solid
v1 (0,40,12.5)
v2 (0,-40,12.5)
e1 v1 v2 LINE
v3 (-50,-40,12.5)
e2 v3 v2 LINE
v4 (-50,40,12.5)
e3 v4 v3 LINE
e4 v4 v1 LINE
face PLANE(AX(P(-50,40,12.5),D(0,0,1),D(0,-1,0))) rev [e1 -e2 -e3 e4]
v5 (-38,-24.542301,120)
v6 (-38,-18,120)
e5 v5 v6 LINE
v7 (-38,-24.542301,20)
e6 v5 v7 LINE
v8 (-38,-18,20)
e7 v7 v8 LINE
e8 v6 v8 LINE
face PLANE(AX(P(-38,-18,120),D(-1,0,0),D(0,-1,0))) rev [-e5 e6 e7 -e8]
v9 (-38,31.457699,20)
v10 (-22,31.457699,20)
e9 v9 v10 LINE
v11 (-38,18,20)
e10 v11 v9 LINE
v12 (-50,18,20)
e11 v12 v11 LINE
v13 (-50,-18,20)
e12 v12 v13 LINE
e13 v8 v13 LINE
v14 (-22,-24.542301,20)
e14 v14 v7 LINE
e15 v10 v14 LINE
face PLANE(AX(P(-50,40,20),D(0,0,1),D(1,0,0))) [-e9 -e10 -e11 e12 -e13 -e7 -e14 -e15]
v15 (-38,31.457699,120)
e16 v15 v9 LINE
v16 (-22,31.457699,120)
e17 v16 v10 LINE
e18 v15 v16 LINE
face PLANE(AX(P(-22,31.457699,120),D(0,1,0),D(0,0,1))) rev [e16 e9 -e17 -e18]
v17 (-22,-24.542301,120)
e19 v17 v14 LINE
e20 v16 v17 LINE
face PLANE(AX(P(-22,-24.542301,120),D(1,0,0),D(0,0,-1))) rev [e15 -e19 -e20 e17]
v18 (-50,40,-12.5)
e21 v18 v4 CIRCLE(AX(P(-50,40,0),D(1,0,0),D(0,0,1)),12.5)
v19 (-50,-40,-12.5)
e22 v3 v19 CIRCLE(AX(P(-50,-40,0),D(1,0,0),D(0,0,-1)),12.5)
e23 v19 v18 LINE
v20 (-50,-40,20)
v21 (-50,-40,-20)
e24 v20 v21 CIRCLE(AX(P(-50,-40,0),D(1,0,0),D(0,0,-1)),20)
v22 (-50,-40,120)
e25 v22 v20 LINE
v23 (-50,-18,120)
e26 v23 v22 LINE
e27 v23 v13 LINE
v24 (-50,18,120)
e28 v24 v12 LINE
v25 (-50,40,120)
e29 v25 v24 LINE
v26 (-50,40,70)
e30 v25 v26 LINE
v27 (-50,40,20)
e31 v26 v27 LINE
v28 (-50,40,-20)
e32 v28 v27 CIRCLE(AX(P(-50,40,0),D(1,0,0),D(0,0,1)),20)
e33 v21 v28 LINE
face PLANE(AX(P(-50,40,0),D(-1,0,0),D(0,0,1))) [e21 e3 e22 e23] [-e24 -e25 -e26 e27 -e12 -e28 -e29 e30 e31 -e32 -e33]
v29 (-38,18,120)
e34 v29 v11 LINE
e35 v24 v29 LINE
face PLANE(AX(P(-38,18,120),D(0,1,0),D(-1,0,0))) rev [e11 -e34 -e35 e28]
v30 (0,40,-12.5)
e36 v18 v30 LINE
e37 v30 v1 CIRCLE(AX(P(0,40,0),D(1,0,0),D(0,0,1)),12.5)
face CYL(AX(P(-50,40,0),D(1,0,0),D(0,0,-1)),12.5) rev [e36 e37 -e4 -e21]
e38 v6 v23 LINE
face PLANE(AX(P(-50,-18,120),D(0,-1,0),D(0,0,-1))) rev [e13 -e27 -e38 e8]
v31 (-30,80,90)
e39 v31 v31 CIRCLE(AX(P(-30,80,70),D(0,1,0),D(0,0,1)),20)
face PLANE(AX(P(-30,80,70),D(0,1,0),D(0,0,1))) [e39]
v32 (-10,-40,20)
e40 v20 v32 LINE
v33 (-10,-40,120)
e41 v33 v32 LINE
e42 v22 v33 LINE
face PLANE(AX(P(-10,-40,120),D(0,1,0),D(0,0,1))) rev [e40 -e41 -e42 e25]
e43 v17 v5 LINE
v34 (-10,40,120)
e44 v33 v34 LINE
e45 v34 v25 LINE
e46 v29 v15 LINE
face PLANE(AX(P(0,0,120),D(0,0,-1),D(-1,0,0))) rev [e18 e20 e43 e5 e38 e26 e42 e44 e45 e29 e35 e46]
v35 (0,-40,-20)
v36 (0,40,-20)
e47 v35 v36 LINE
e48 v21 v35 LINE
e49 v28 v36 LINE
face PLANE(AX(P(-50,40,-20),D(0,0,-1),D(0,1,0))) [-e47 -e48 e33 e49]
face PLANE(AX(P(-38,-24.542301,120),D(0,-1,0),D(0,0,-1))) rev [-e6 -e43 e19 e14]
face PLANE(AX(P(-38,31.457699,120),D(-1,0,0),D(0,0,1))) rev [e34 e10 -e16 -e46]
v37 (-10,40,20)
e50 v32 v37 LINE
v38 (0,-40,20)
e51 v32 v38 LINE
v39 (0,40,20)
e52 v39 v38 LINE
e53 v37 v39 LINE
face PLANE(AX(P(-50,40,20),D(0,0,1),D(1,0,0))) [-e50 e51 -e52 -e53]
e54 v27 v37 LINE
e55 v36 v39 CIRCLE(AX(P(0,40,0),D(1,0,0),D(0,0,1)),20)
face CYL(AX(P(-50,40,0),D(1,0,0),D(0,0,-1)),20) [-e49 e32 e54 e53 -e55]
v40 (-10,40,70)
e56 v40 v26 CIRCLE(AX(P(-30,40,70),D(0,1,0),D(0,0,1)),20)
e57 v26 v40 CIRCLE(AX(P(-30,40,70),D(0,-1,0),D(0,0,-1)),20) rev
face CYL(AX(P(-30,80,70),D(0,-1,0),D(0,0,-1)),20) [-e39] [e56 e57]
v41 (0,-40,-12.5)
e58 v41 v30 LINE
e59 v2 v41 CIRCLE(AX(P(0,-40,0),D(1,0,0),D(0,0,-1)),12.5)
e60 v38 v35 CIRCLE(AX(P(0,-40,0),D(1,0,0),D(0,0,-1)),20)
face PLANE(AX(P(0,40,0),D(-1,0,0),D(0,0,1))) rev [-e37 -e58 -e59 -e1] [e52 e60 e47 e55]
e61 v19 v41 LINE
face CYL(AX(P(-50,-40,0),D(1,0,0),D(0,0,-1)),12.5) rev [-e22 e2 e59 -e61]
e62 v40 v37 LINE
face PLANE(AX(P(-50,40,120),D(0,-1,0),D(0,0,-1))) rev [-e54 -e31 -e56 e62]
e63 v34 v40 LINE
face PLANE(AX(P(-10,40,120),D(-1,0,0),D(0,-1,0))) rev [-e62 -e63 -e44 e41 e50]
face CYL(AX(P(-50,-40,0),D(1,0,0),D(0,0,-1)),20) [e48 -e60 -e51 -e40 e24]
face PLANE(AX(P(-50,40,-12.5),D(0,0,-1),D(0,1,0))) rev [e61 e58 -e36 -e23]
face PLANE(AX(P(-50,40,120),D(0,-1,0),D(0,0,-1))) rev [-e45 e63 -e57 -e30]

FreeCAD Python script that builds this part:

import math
import FreeCAD as App
import Part
import Sketcher
from FreeCAD import Vector
Q = App.Units.Quantity


def add_polygon(sketch, points):
    """Adds a closed chain of lines whose ends are joined by coincident constraints."""
    first, n = sketch.GeometryCount, len(points)
    for a, b in zip(points, points[1:] + points[:1]):
        sketch.addGeometry(Part.LineSegment(App.Vector(*a, 0), App.Vector(*b, 0)), False)
    for i in range(n):
        sketch.addConstraint(Sketcher.Constraint("Coincident", first + i, 2, first + (i + 1) % n, 1))

doc = App.newDocument("Part")
body = doc.addObject("PartDesign::Body", "Body")

# Sketch on YZ plane
sketch1 = doc.addObject("Sketcher::SketchObject", "Sketch")
body.addObject(sketch1)
sketch1.AttachmentSupport = (doc.YZ_Plane, [""])
sketch1.MapMode = "FlatFace"
sketch1.addGeometry([
    Part.LineSegment(Vector(40, 20, 0), Vector(-40, 20, 0)),  # 0
    Part.ArcOfCircle(Part.Circle(Vector(-40, 0, 0), Vector(0, 0, 1), 20), math.radians(90), math.radians(270)),  # 1
    Part.LineSegment(Vector(-40, -20, 0), Vector(40, -20, 0)),  # 2
    Part.ArcOfCircle(Part.Circle(Vector(40, 0, 0), Vector(0, 0, 1), 20), math.radians(-90), math.radians(90)),  # 3
    Part.LineSegment(Vector(-40, 12.5, 0), Vector(40, 12.5, 0)),  # 4
    Part.ArcOfCircle(Part.Circle(Vector(40, 0, 0), Vector(0, 0, 1), 12.5), math.radians(-90), math.radians(90)),  # 5
    Part.LineSegment(Vector(40, -12.5, 0), Vector(-40, -12.5, 0)),  # 6
    Part.ArcOfCircle(Part.Circle(Vector(-40, 0, 0), Vector(0, 0, 1), 12.5), math.radians(90), math.radians(270)),  # 7
], False)
sketch1.addConstraint([
    Sketcher.Constraint("Tangent", 0, 2, 1, 1),
    Sketcher.Constraint("Tangent", 1, 2, 2, 1),
    Sketcher.Constraint("Tangent", 2, 2, 3, 1),
    Sketcher.Constraint("Tangent", 3, 2, 0, 1),
    Sketcher.Constraint("Tangent", 4, 2, 5, 2),
    Sketcher.Constraint("Tangent", 5, 1, 6, 1),
    Sketcher.Constraint("Tangent", 6, 2, 7, 2),
    Sketcher.Constraint("Tangent", 7, 1, 4, 1),
    Sketcher.Constraint("Horizontal", 0),
    Sketcher.Constraint("Horizontal", 2),
    Sketcher.Constraint("Horizontal", 4),
    Sketcher.Constraint("Horizontal", 6),
    Sketcher.Constraint("Coincident", 5, 3, 3, 3),
    Sketcher.Constraint("Symmetric", 1, 3, 3, 3, -1, 1),
    Sketcher.Constraint("Vertical", 7, 3, 0, 2),
    Sketcher.Constraint("Radius", 1, Q("20 mm")),
    Sketcher.Constraint("Radius", 5, Q("12.5 mm")),
    Sketcher.Constraint("DistanceX", 0, 2, 0, 1, Q("80 mm")),
])
pad1 = doc.addObject("PartDesign::Pad", "Pad")
body.addObject(pad1)
pad1.Profile = sketch1
pad1.Length = 50
pad1.Reversed = True

# Sketch on XY plane
sketch2 = doc.addObject("Sketcher::SketchObject", "Sketch001")
body.addObject(sketch2)
sketch2.AttachmentSupport = (doc.XY_Plane, [""])
sketch2.MapMode = "FlatFace"
sketch2.AttachmentOffset = App.Placement(Vector(0, 0, 20), App.Rotation())
add_polygon(sketch2, [(-10, 40), (-50, 40), (-50, 18), (-38, 18), (-38, 31.457699), (-22, 31.457699), (-22, -24.542301), (-38, -24.542301), (-38, -18), (-50, -18), (-50, -40), (-10, -40)])  # lines 0-11
sketch2.addConstraint([
    Sketcher.Constraint("Horizontal", 0),
    Sketcher.Constraint("Vertical", 1),
    Sketcher.Constraint("Horizontal", 2),
    Sketcher.Constraint("Vertical", 3),
    Sketcher.Constraint("Horizontal", 4),
    Sketcher.Constraint("Vertical", 5),
    Sketcher.Constraint("Horizontal", 6),
    Sketcher.Constraint("Vertical", 7),
    Sketcher.Constraint("Horizontal", 8),
    Sketcher.Constraint("Vertical", 9),
    Sketcher.Constraint("Horizontal", 10),
    Sketcher.Constraint("Vertical", 11),
    Sketcher.Constraint("Symmetric", 2, 2, 7, 2, -1),
    Sketcher.Constraint("Symmetric", 0, 2, 9, 2, -1),
    Sketcher.Constraint("DistanceX", 0, 2, 0, 1, Q("40 mm")),
    Sketcher.Constraint("DistanceX", 2, 1, 2, 2, Q("12 mm")),
    Sketcher.Constraint("DistanceX", 4, 1, 4, 2, Q("16 mm")),
    Sketcher.Constraint("DistanceY", 1, 2, 1, 1, Q("22 mm")),
    Sketcher.Constraint("DistanceY", 5, 2, 5, 1, Q("56 mm")),
    Sketcher.Constraint("DistanceY", 11, 1, 11, 2, Q("80 mm")),
    Sketcher.Constraint("DistanceX", 0, 2, -1, 1, Q("50 mm")),
    Sketcher.Constraint("DistanceY", 3, 1, 3, 2, Q("13.457699 mm")),
])
pad2 = doc.addObject("PartDesign::Pad", "Pad001")
body.addObject(pad2)
pad2.Profile = sketch2
pad2.Length = 100

# Sketch on XZ plane
sketch3 = doc.addObject("Sketcher::SketchObject", "Sketch002")
body.addObject(sketch3)
sketch3.AttachmentSupport = (doc.XZ_Plane, [""])
sketch3.MapMode = "FlatFace"
sketch3.AttachmentOffset = App.Placement(Vector(0, 0, -40), App.Rotation())
sketch3.addGeometry(Part.Circle(Vector(-30, 70, 0), Vector(0, 0, 1), 20), False)
sketch3.addConstraint([
    Sketcher.Constraint("Diameter", 0, Q("40 mm")),
    Sketcher.Constraint("DistanceX", 0, 3, -1, 1, Q("30 mm")),
    Sketcher.Constraint("DistanceY", -1, 1, 0, 3, Q("70 mm")),
])
pad3 = doc.addObject("PartDesign::Pad", "Pad002")
body.addObject(pad3)
pad3.Profile = sketch3
pad3.Length = 40
pad3.Reversed = True

doc.recompute()
